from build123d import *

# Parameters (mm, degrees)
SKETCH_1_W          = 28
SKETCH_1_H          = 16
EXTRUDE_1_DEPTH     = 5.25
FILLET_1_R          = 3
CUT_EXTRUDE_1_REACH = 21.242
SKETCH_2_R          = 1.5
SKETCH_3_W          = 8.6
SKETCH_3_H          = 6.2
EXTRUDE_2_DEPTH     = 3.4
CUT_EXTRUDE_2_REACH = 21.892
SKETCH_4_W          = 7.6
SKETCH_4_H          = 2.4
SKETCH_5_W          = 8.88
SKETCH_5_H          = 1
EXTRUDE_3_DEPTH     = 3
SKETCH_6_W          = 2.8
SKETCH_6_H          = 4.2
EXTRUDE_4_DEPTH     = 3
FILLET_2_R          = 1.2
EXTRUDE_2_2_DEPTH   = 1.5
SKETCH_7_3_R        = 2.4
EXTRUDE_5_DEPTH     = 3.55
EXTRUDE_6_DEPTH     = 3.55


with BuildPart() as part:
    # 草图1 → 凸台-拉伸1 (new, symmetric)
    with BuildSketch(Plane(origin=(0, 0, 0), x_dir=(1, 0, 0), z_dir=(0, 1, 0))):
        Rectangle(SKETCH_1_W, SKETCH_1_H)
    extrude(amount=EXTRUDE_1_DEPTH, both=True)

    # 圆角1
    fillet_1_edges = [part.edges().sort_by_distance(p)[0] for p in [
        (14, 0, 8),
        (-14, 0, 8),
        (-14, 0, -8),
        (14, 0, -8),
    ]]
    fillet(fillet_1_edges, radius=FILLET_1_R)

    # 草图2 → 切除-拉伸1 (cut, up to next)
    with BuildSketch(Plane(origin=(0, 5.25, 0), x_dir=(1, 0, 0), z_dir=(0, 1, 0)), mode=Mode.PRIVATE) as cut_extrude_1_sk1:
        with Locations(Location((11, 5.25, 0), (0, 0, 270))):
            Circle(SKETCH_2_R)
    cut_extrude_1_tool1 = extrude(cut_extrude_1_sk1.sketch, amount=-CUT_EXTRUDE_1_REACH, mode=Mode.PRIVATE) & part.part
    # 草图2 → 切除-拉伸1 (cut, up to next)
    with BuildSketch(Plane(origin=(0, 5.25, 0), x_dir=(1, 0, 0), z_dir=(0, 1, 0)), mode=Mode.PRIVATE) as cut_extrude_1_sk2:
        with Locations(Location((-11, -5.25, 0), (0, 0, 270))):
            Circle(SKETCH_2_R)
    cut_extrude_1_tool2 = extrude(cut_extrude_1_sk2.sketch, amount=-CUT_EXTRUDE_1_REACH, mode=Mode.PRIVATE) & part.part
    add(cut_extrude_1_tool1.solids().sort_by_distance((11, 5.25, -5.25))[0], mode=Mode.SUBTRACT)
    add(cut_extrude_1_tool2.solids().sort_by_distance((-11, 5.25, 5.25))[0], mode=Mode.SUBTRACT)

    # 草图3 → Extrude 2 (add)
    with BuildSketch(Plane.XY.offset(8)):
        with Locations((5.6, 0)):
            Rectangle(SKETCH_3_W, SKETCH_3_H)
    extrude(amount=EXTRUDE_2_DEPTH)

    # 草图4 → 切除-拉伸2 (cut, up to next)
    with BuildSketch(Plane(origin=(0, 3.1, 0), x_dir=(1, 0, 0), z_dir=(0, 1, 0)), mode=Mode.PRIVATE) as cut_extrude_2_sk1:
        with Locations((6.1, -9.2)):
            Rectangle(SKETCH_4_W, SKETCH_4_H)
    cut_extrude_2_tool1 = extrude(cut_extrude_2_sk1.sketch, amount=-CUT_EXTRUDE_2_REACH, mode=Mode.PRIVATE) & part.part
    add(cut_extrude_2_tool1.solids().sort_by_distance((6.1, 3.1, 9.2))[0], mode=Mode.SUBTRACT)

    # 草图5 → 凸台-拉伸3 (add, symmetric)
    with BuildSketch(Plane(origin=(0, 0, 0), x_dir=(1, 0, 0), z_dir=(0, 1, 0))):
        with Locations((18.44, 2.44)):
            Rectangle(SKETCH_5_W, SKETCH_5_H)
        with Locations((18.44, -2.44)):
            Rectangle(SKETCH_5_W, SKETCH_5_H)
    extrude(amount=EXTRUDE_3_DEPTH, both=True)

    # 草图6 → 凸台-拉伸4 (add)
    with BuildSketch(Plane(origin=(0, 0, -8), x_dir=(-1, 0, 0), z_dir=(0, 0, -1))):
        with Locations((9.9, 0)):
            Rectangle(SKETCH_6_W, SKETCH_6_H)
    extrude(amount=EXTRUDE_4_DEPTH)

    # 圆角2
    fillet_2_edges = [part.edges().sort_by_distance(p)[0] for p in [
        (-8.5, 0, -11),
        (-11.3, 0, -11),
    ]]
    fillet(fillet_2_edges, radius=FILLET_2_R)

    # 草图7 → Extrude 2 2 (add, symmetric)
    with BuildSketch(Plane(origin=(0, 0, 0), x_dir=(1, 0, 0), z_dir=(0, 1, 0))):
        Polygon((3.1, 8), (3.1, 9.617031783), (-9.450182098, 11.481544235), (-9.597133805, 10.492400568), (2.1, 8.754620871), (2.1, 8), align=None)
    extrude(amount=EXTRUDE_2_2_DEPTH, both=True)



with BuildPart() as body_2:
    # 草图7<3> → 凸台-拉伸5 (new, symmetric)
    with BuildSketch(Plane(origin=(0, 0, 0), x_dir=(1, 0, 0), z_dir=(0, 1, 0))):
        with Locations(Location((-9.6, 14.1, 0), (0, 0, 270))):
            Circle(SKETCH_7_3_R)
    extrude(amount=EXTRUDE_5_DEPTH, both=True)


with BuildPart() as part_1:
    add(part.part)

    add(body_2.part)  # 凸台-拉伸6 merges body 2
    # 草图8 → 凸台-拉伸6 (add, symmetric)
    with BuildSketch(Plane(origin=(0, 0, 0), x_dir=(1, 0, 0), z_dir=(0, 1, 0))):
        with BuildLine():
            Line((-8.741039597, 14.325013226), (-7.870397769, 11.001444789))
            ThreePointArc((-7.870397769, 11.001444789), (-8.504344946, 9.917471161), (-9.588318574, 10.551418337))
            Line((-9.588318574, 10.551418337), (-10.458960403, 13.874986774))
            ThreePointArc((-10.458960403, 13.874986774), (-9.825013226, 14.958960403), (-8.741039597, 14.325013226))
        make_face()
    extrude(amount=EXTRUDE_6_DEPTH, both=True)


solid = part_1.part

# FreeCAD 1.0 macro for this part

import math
import FreeCAD as App
import Part
import Sketcher

V = App.Vector
Q = App.Units.Quantity


def edges_at(feature, points):
    """Names of the edges that pass closest to the given points."""
    edges = feature.Shape.Edges
    near = lambda p: min(range(len(edges)), key=lambda i: edges[i].distToShape(Part.Vertex(*p))[0])
    return sorted({f"Edge{near(p) + 1}" for p in points})


def add_polygon(sketch, points):
    """Adds a closed chain of lines whose ends are joined by coincident constraints."""
    first, n = sketch.GeometryCount, len(points)
    for a, b in zip(points, points[1:] + points[:1]):
        sketch.addGeometry(Part.LineSegment(App.Vector(*a, 0), App.Vector(*b, 0)), False)
    for i in range(n):
        sketch.addConstraint(Sketcher.Constraint("Coincident", first + i, 2, first + (i + 1) % n, 1))

doc = App.newDocument("Part")
params = doc.addObject("Spreadsheet::Sheet", "Params")
for row, (alias, value) in enumerate([
    ("sketch1_width", "28 mm"),
    ("sketch1_height", "16 mm"),
    ("pad1_length", "10.5 mm"),
    ("fillet_radius", "3 mm"),
    ("sketch2_diameter", "3 mm"),
    ("sketch3_diameter", "3 mm"),
    ("sketch4_width", "8.6 mm"),
    ("sketch4_height", "6.2 mm"),
    ("pad2_length", "3.4 mm"),
    ("sketch5_width", "7.6 mm"),
    ("sketch5_height", "2.4 mm"),
    ("sketch6_height", "1 mm"),
    ("sketch6_width", "8.88 mm"),
    ("pad3_length", "6 mm"),
    ("sketch7_width", "2.8 mm"),
    ("sketch7_height", "4.2 mm"),
    ("pad4_length", "3 mm"),
    ("fillet2_radius", "1.2 mm"),
    ("sketch8_width", "1 mm"),
    ("sketch8_length", "1 mm"),
    ("pad5_length", "3 mm"),
    ("sketch9_diameter", "4.8 mm"),
    ("pad6_length", "7.1 mm"),
    ("pad7_length", "7.1 mm"),
], start=1):
    params.set(f"A{row}", alias)
    params.set(f"B{row}", "=" + value)
    params.setAlias(f"B{row}", alias)

body = doc.addObject("PartDesign::Body", "Body")

# Sketch on XZ plane
sketch1 = body.newObject("Sketcher::SketchObject", "Sketch")
sketch1.AttachmentSupport = (doc.getObject("XZ_Plane"), [""])
sketch1.MapMode = "FlatFace"
add_polygon(sketch1, [(-14, -8), (-14, 8), (14, 8), (14, -8)])  # lines 0-3
sketch1.addConstraint(Sketcher.Constraint("Vertical", 0))
sketch1.addConstraint(Sketcher.Constraint("Horizontal", 1))
sketch1.addConstraint(Sketcher.Constraint("Vertical", 2))
sketch1.addConstraint(Sketcher.Constraint("Horizontal", 3))
sketch1.addConstraint(Sketcher.Constraint("Symmetric", 0, 2, 2, 2, -1, 1))
sketch1.addConstraint(Sketcher.Constraint("DistanceX", 1, 1, 1, 2, Q("28 mm")))
sketch1.addConstraint(Sketcher.Constraint("DistanceY", 0, 1, 0, 2, Q("16 mm")))
sketch1.setExpression("Constraints[9]", "Params.sketch1_width")
sketch1.setExpression("Constraints[10]", "Params.sketch1_height")
pad1 = body.newObject("PartDesign::Pad", "Pad")
pad1.Profile = sketch1
pad1.setExpression("Length", "Params.pad1_length")
pad1.Midplane = True
doc.recompute()

fillet = body.newObject("PartDesign::Fillet", "Fillet")
fillet.Base = (pad1, edges_at(pad1, [
    (14, 0, 8),
    (-14, 0, 8),
    (-14, 0, -8),
    (14, 0, -8),
]))
fillet.setExpression("Radius", "Params.fillet_radius")

# Sketch on XZ plane
sketch2 = body.newObject("Sketcher::SketchObject", "Sketch001")
sketch2.AttachmentSupport = (doc.getObject("XZ_Plane"), [""])
sketch2.MapMode = "FlatFace"
sketch2.AttachmentOffset = App.Placement(V(0, 0, -5.25), App.Rotation())
sketch2.addGeometry(Part.Circle(V(11, -5.2, 0), V(0, 0, 1), 1.5), False)
sketch2.addConstraint(Sketcher.Constraint("Diameter", 0, Q("3 mm")))
sketch2.addConstraint(Sketcher.Constraint("DistanceX", -1, 1, 0, 3, Q("11 mm")))
sketch2.addConstraint(Sketcher.Constraint("DistanceY", 0, 3, -1, 1, Q("5.25 mm")))
sketch2.setExpression("Constraints[0]", "Params.sketch2_diameter")
pocket1 = body.newObject("PartDesign::Pocket", "Pocket")
pocket1.Profile = sketch2
pocket1.Type = "UpToFirst"
pocket1.Reversed = True

# Sketch on XZ plane
sketch3 = body.newObject("Sketcher::SketchObject", "Sketch002")
sketch3.AttachmentSupport = (doc.getObject("XZ_Plane"), [""])
sketch3.MapMode = "FlatFace"
sketch3.AttachmentOffset = App.Placement(V(0, 0, -5.25), App.Rotation())
sketch3.addGeometry(Part.Circle(V(-11, 5.2, 0), V(0, 0, 1), 1.5), False)
sketch3.addConstraint(Sketcher.Constraint("Diameter", 0, Q("3 mm")))
sketch3.addConstraint(Sketcher.Constraint("DistanceX", 0, 3, -1, 1, Q("11 mm")))
sketch3.addConstraint(Sketcher.Constraint("DistanceY", -1, 1, 0, 3, Q("5.25 mm")))
sketch3.setExpression("Constraints[0]", "Params.sketch3_diameter")
pocket2 = body.newObject("PartDesign::Pocket", "Pocket001")
pocket2.Profile = sketch3
pocket2.Type = "UpToFirst"
pocket2.Reversed = True

# Sketch on XY plane
sketch4 = body.newObject("Sketcher::SketchObject", "Sketch003")
sketch4.AttachmentSupport = (doc.getObject("XY_Plane"), [""])
sketch4.MapMode = "FlatFace"
sketch4.AttachmentOffset = App.Placement(V(0, 0, 8), App.Rotation())
add_polygon(sketch4, [(1, 3), (1, -3), (10, -3), (10, 3)])  # lines 0-3
sketch4.addConstraint(Sketcher.Constraint("Vertical", 0))
sketch4.addConstraint(Sketcher.Constraint("Horizontal", 1))
sketch4.addConstraint(Sketcher.Constraint("Vertical", 2))
sketch4.addConstraint(Sketcher.Constraint("Horizontal", 3))
sketch4.addConstraint(Sketcher.Constraint("DistanceX", 1, 1, 1, 2, Q("8.6 mm")))
sketch4.addConstraint(Sketcher.Constraint("DistanceY", 0, 2, 0, 1, Q("6.2 mm")))
sketch4.addConstraint(Sketcher.Constraint("DistanceX", -1, 1, 0, 2, Q("1.3 mm")))
sketch4.addConstraint(Sketcher.Constraint("DistanceY", 0, 2, -1, 1, Q("3.1 mm")))
sketch4.setExpression("Constraints[8]", "Params.sketch4_width")
sketch4.setExpression("Constraints[9]", "Params.sketch4_height")
pad2 = body.newObject("PartDesign::Pad", "Pad001")
pad2.Profile = sketch4
pad2.setExpression("Length", "Params.pad2_length")

# Sketch on XZ plane
sketch5 = body.newObject("Sketcher::SketchObject", "Sketch004")
sketch5.AttachmentSupport = (doc.getObject("XZ_Plane"), [""])
sketch5.MapMode = "FlatFace"
sketch5.AttachmentOffset = App.Placement(V(0, 0, -3.1), App.Rotation())
add_polygon(sketch5, [(2.3, 8), (2.3, 10.4), (9.9, 10.4), (9.9, 8)])  # lines 0-3
sketch5.addConstraint(Sketcher.Constraint("Vertical", 0))
sketch5.addConstraint(Sketcher.Constraint("Horizontal", 1))
sketch5.addConstraint(Sketcher.Constraint("Vertical", 2))
sketch5.addConstraint(Sketcher.Constraint("Horizontal", 3))
sketch5.addConstraint(Sketcher.Constraint("DistanceX", 1, 1, 1, 2, Q("7.6 mm")))
sketch5.addConstraint(Sketcher.Constraint("DistanceY", 0, 1, 0, 2, Q("2.4 mm")))
sketch5.addConstraint(Sketcher.Constraint("DistanceY", -1, 1, 2, 2, Q("8 mm")))
sketch5.addConstraint(Sketcher.Constraint("DistanceX", -1, 1, 0, 2, Q("2.3 mm")))
sketch5.setExpression("Constraints[8]", "Params.sketch5_width")
sketch5.setExpression("Constraints[9]", "Params.sketch5_height")
pocket3 = body.newObject("PartDesign::Pocket", "Pocket002")
pocket3.Profile = sketch5
pocket3.Type = "UpToFirst"
pocket3.Reversed = True

# Sketch on XZ plane
sketch6 = body.newObject("Sketcher::SketchObject", "Sketch005")
sketch6.AttachmentSupport = (doc.getObject("XZ_Plane"), [""])
sketch6.MapMode = "FlatFace"
add_polygon(sketch6, [(14, -2.9), (14, -1.9), (22.9, -1.9), (22.9, -2.9)])  # lines 0-3
add_polygon(sketch6, [(14, 1.9), (14, 2.9), (22.9, 2.9), (22.9, 1.9)])  # lines 4-7
sketch6.addConstraint(Sketcher.Constraint("Vertical", 0))
sketch6.addConstraint(Sketcher.Constraint("Horizontal", 1))
sketch6.addConstraint(Sketcher.Constraint("Vertical", 2))
sketch6.addConstraint(Sketcher.Constraint("Horizontal", 3))
sketch6.addConstraint(Sketcher.Constraint("Vertical", 4))
sketch6.addConstraint(Sketcher.Constraint("Horizontal", 5))
sketch6.addConstraint(Sketcher.Constraint("Vertical", 6))
sketch6.addConstraint(Sketcher.Constraint("Horizontal", 7))
sketch6.addConstraint(Sketcher.Constraint("Symmetric", 3, 2, 4, 2, -1))
sketch6.addConstraint(Sketcher.Constraint("Symmetric", 1, 2, 6, 2, -1))
sketch6.addConstraint(Sketcher.Constraint("DistanceY", 0, 1, 0, 2, Q("1 mm")))
sketch6.addConstraint(Sketcher.Constraint("DistanceX", -1, 1, 0, 2, Q("14 mm")))
sketch6.addConstraint(Sketcher.Constraint("DistanceX", 1, 1, 1, 2, Q("8.88 mm")))
sketch6.addConstraint(Sketcher.Constraint("DistanceY", 0, 2, -1, 1, Q("1.94 mm")))
sketch6.setExpression("Constraints[18]", "Params.sketch6_height")
sketch6.setExpression("Constraints[20]", "Params.sketch6_width")
pad3 = body.newObject("PartDesign::Pad", "Pad002")
pad3.Profile = sketch6
pad3.setExpression("Length", "Params.pad3_length")
pad3.Midplane = True

# Sketch on XY plane
sketch7 = body.newObject("Sketcher::SketchObject", "Sketch006")
sketch7.AttachmentSupport = (doc.getObject("XY_Plane"), [""])
sketch7.MapMode = "FlatFace"
sketch7.AttachmentOffset = App.Placement(V(0, 0, -8), App.Rotation())
add_polygon(sketch7, [(-8.5, 2.1), (-8.5, -2.1), (-11.3, -2.1), (-11.3, 2.1)])  # lines 0-3
sketch7.addConstraint(Sketcher.Constraint("Vertical", 0))
sketch7.addConstraint(Sketcher.Constraint("Horizontal", 1))
sketch7.addConstraint(Sketcher.Constraint("Vertical", 2))
sketch7.addConstraint(Sketcher.Constraint("Horizontal", 3))
sketch7.addConstraint(Sketcher.Constraint("DistanceX", 1, 2, 1, 1, Q("2.8 mm")))
sketch7.addConstraint(Sketcher.Constraint("DistanceY", 0, 2, 0, 1, Q("4.2 mm")))
sketch7.addConstraint(Sketcher.Constraint("DistanceX", 0, 2, -1, 1, Q("8.5 mm")))
sketch7.addConstraint(Sketcher.Constraint("DistanceY", 0, 2, -1, 1, Q("2.1 mm")))
sketch7.setExpression("Constraints[8]", "Params.sketch7_width")
sketch7.setExpression("Constraints[9]", "Params.sketch7_height")
pad4 = body.newObject("PartDesign::Pad", "Pad003")
pad4.Profile = sketch7
pad4.setExpression("Length", "Params.pad4_length")
pad4.Reversed = True
doc.recompute()

fillet2 = body.newObject("PartDesign::Fillet", "Fillet001")
fillet2.Base = (pad4, edges_at(pad4, [(-8.5, 0, -11), (-11.3, 0, -11)]))
fillet2.setExpression("Radius", "Params.fillet2_radius")

# Sketch on XZ plane
sketch8 = body.newObject("Sketcher::SketchObject", "Sketch007")
sketch8.AttachmentSupport = (doc.getObject("XZ_Plane"), [""])
sketch8.MapMode = "FlatFace"
add_polygon(sketch8, [(3.1, -8), (3.1, -9.6), (-9.5, -11.5), (-9.6, -10.5), (2.1, -8.8), (2.1, -8)])  # lines 0-5
sketch8.addConstraint(Sketcher.Constraint("Vertical", 0))
sketch8.addConstraint(Sketcher.Constraint("Vertical", 4))
sketch8.addConstraint(Sketcher.Constraint("Horizontal", 5))
sketch8.addConstraint(Sketcher.Constraint("Perpendicular", 1, 2))
sketch8.addConstraint(Sketcher.Constraint("Perpendicular", 2, 3))
sketch8.addConstraint(Sketcher.Constraint("DistanceX", 5, 1, 5, 2, Q("1 mm")))
sketch8.addConstraint(Sketcher.Constraint("Distance", 2, Q("1 mm")))
sketch8.addConstraint(Sketcher.Constraint("DistanceY", 4, 2, -1, 1, Q("8 mm")))
sketch8.addConstraint(Sketcher.Constraint("DistanceX", -1, 1, 0, 2, Q("3.1 mm")))
sketch8.addConstraint(Sketcher.Constraint("DistanceY", 0, 2, 0, 1, Q("1.617032 mm")))
sketch8.addConstraint(Sketcher.Constraint("DistanceY", 4, 1, 4, 2, Q("0.754621 mm")))
sketch8.addConstraint(Sketcher.Constraint("DistanceY", 2, 2, -1, 1, Q("10.492401 mm")))
sketch8.setExpression("Constraints[11]", "Params.sketch8_width")
sketch8.setExpression("Constraints[12]", "Params.sketch8_length")
pad5 = body.newObject("PartDesign::Pad", "Pad004")
pad5.Profile = sketch8
pad5.setExpression("Length", "Params.pad5_length")
pad5.Midplane = True
body2 = doc.addObject("PartDesign::Body", "Body001")

# Sketch on XZ plane
sketch9 = body2.newObject("Sketcher::SketchObject", "Sketch008")
sketch9.AttachmentSupport = (doc.getObject("XZ_Plane001"), [""])
sketch9.MapMode = "FlatFace"
sketch9.addGeometry(Part.Circle(V(-9.6, -14.1, 0), V(0, 0, 1), 2.4), False)
sketch9.addConstraint(Sketcher.Constraint("Diameter", 0, Q("4.8 mm")))
sketch9.addConstraint(Sketcher.Constraint("DistanceX", 0, 3, -1, 1, Q("9.6 mm")))
sketch9.addConstraint(Sketcher.Constraint("DistanceY", 0, 3, -1, 1, Q("14.1 mm")))
sketch9.setExpression("Constraints[0]", "Params.sketch9_diameter")
pad6 = body2.newObject("PartDesign::Pad", "Pad005")
pad6.Profile = sketch9
pad6.setExpression("Length", "Params.pad6_length")
pad6.Midplane = True
body.AllowCompound = True
doc.recompute()

boolean = body.newObject("PartDesign::Boolean", "Boolean")
boolean.Type = "Fuse"
boolean.addObjects([body2])

# Sketch on XZ plane
sketch10 = body.newObject("Sketcher::SketchObject", "Sketch009")
sketch10.AttachmentSupport = (doc.getObject("XZ_Plane"), [""])
sketch10.MapMode = "FlatFace"
sketch10.addGeometry(Part.LineSegment(V(-7.9, -11, 0), V(-8.7, -14.3, 0)), False)
sketch10.addGeometry(Part.ArcOfCircle(Part.Circle(V(-9.6, -14.1, 0), V(0, 0, 1), 0.9), math.radians(165), math.radians(345)), False)
sketch10.addGeometry(Part.LineSegment(V(-10.5, -13.9, 0), V(-9.6, -10.6, 0)), False)
sketch10.addGeometry(Part.ArcOfCircle(Part.Circle(V(-8.7, -10.8, 0), V(0, 0, 1), 0.9), math.radians(-15), math.radians(165)), False)
sketch10.addConstraint(Sketcher.Constraint("Tangent", 0, 2, 1, 2))
sketch10.addConstraint(Sketcher.Constraint("Tangent", 1, 1, 2, 1))
sketch10.addConstraint(Sketcher.Constraint("Tangent", 2, 2, 3, 2))
sketch10.addConstraint(Sketcher.Constraint("Tangent", 3, 1, 0, 1))
sketch10.addConstraint(Sketcher.Constraint("Equal", 1, 3))
sketch10.addConstraint(Sketcher.Constraint("DistanceX", 1, 3, -1, 1, Q("9.6 mm")))
sketch10.addConstraint(Sketcher.Constraint("DistanceY", 1, 3, -1, 1, Q("14.1 mm")))
sketch10.addConstraint(Sketcher.Constraint("Radius", 1, Q("0.887944 mm")))
sketch10.addConstraint(Sketcher.Constraint("DistanceX", 3, 3, -1, 1, Q("8.729358 mm")))
sketch10.addConstraint(Sketcher.Constraint("DistanceY", 3, 3, -1, 1, Q("10.776432 mm")))
pad7 = body.newObject("PartDesign::Pad", "Pad006")
pad7.Profile = sketch10
pad7.setExpression("Length", "Params.pad7_length")
pad7.Midplane = True

doc.recompute()
